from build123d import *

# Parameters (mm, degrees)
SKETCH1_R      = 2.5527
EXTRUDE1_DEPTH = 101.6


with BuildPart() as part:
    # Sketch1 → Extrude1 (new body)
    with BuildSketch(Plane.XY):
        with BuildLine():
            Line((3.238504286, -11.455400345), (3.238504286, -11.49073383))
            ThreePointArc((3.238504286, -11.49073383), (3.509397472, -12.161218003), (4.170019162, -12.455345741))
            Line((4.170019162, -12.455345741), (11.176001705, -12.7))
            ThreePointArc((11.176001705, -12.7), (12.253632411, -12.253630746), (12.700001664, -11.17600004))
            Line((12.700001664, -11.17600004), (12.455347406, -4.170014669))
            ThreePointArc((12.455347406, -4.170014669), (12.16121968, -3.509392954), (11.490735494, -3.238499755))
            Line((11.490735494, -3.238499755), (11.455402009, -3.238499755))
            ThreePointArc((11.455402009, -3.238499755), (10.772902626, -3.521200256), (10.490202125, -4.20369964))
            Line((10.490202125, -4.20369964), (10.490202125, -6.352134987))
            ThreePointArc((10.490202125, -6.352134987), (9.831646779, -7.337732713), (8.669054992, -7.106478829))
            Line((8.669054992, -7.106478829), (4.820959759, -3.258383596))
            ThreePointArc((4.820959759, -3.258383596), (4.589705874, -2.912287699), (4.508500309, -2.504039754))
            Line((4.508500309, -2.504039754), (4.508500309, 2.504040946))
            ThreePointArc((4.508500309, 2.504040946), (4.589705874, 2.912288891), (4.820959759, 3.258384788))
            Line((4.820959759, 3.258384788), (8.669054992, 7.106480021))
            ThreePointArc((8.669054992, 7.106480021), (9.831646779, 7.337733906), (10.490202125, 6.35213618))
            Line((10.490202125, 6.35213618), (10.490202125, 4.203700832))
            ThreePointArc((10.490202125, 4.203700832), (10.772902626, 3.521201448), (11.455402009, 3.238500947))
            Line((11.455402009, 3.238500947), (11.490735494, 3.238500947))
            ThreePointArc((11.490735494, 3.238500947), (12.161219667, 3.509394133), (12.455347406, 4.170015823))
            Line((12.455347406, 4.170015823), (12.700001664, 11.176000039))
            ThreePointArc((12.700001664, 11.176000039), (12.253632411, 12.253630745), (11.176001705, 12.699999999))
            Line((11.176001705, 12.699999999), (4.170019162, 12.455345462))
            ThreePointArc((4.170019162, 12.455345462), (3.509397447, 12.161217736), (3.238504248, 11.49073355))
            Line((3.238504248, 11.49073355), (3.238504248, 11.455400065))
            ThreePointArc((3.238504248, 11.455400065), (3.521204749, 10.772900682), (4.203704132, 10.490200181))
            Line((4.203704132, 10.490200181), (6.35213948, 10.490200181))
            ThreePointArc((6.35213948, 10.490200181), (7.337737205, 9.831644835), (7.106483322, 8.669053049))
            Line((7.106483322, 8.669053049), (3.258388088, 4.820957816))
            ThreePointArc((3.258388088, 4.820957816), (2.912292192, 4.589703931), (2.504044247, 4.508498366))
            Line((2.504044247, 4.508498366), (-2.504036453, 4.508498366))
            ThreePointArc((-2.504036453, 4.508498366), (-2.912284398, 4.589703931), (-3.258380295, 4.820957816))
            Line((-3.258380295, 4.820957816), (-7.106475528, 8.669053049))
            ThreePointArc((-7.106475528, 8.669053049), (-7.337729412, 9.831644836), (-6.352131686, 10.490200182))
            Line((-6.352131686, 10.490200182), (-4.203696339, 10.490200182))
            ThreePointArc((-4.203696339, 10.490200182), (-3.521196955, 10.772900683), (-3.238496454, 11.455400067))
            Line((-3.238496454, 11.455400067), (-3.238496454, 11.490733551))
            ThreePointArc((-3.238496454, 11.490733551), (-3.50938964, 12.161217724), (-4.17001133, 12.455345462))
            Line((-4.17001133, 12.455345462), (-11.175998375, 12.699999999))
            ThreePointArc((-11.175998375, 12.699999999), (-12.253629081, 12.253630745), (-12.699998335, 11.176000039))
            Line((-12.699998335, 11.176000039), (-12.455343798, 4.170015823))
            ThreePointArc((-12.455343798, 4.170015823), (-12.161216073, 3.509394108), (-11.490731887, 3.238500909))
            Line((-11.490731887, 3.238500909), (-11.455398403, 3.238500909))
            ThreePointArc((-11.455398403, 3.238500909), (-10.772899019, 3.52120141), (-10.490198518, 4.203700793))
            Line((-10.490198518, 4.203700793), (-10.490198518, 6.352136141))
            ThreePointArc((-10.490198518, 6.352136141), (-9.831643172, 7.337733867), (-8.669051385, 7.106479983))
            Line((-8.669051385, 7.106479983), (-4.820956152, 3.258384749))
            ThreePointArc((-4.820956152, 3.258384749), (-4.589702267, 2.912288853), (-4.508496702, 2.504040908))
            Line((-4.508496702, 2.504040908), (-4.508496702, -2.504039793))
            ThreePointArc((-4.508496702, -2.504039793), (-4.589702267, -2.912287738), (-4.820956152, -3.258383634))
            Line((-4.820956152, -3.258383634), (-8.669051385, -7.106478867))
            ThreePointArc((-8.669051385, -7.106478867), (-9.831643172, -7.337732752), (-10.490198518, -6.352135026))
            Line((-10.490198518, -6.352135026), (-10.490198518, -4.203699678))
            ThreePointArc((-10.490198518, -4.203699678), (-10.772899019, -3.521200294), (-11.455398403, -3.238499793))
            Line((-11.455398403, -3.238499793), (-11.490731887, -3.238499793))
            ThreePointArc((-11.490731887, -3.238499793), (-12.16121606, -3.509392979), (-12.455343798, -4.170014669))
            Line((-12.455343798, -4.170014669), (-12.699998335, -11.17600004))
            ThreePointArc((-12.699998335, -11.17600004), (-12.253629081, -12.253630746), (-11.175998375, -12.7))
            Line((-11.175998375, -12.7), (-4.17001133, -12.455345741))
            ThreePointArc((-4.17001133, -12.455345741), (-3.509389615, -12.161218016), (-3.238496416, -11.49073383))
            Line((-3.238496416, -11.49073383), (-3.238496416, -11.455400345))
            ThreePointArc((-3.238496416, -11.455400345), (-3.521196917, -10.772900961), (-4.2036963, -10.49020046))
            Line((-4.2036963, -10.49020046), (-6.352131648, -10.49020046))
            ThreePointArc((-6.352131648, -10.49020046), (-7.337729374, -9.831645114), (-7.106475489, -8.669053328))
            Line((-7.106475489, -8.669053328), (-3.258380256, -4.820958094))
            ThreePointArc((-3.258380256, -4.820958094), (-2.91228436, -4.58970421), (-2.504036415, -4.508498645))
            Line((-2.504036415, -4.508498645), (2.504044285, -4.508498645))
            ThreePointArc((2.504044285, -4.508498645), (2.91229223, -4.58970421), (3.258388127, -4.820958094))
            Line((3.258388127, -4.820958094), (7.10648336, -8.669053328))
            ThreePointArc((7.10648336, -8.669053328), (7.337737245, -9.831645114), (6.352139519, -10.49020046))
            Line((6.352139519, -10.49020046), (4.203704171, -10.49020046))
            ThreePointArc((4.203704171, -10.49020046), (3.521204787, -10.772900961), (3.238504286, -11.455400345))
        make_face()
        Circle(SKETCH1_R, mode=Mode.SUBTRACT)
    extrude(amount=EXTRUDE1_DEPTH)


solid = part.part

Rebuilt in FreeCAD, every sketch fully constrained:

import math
import FreeCAD as App
import Part
import Sketcher
from FreeCAD import Vector
Q = App.Units.Quantity

doc = App.newDocument("Part")
body = doc.addObject("PartDesign::Body", "Body")

# Sketch on XY plane
sketch1 = body.newObject("Sketcher::SketchObject", "Sketch")
sketch1.AttachmentSupport = (doc.getObject("XY_Plane"), [""])
sketch1.MapMode = "FlatFace"
sketch1.addGeometry([
    Part.LineSegment(Vector(3.239, -11.455, 0), Vector(3.239, -11.491, 0)),  # 0
    Part.ArcOfCircle(Part.Circle(Vector(4.204, -11.491, 0), Vector(0, 0, 1), 0.965), math.radians(180), math.radians(268)),  # 1
    Part.LineSegment(Vector(4.17, -12.455, 0), Vector(11.176, -12.7, 0)),  # 2
    Part.ArcOfCircle(Part.Circle(Vector(11.176, -11.176, 0), Vector(0, 0, 1), 1.524), math.radians(-90), math.radians(0)),  # 3
    Part.LineSegment(Vector(12.7, -11.176, 0), Vector(12.455, -4.17, 0)),  # 4
    Part.ArcOfCircle(Part.Circle(Vector(11.491, -4.204, 0), Vector(0, 0, 1), 0.965), math.radians(2), math.radians(90)),  # 5
    Part.LineSegment(Vector(11.491, -3.238, 0), Vector(11.455, -3.238, 0)),  # 6
    Part.ArcOfCircle(Part.Circle(Vector(11.455, -4.204, 0), Vector(0, 0, 1), 0.965), math.radians(90), math.radians(180)),  # 7
    Part.LineSegment(Vector(10.49, -4.204, 0), Vector(10.49, -6.352, 0)),  # 8
    Part.ArcOfCircle(Part.Circle(Vector(9.423, -6.352, 0), Vector(0, 0, 1), 1.067), math.radians(-135), math.radians(0)),  # 9
    Part.LineSegment(Vector(8.669, -7.106, 0), Vector(4.821, -3.258, 0)),  # 10
    Part.ArcOfCircle(Part.Circle(Vector(5.575, -2.504, 0), Vector(0, 0, 1), 1.067), math.radians(180), math.radians(225)),  # 11
    Part.LineSegment(Vector(4.509, -2.504, 0), Vector(4.509, 2.504, 0)),  # 12
    Part.ArcOfCircle(Part.Circle(Vector(5.575, 2.504, 0), Vector(0, 0, 1), 1.067), math.radians(135), math.radians(180)),  # 13
    Part.LineSegment(Vector(4.821, 3.258, 0), Vector(8.669, 7.106, 0)),  # 14
    Part.ArcOfCircle(Part.Circle(Vector(9.423, 6.352, 0), Vector(0, 0, 1), 1.067), math.radians(0), math.radians(135)),  # 15
    Part.LineSegment(Vector(10.49, 6.352, 0), Vector(10.49, 4.204, 0)),  # 16
    Part.ArcOfCircle(Part.Circle(Vector(11.455, 4.204, 0), Vector(0, 0, 1), 0.965), math.radians(180), math.radians(270)),  # 17
    Part.LineSegment(Vector(11.455, 3.239, 0), Vector(11.491, 3.239, 0)),  # 18
    Part.ArcOfCircle(Part.Circle(Vector(11.491, 4.204, 0), Vector(0, 0, 1), 0.965), math.radians(-90), math.radians(-2)),  # 19
    Part.LineSegment(Vector(12.455, 4.17, 0), Vector(12.7, 11.176, 0)),  # 20
    Part.ArcOfCircle(Part.Circle(Vector(11.176, 11.176, 0), Vector(0, 0, 1), 1.524), math.radians(0), math.radians(90)),  # 21
    Part.LineSegment(Vector(11.176, 12.7, 0), Vector(4.17, 12.455, 0)),  # 22
    Part.ArcOfCircle(Part.Circle(Vector(4.204, 11.491, 0), Vector(0, 0, 1), 0.965), math.radians(92), math.radians(180)),  # 23
    Part.LineSegment(Vector(3.239, 11.491, 0), Vector(3.239, 11.455, 0)),  # 24
    Part.ArcOfCircle(Part.Circle(Vector(4.204, 11.455, 0), Vector(0, 0, 1), 0.965), math.radians(-180), math.radians(-90)),  # 25
    Part.LineSegment(Vector(4.204, 10.49, 0), Vector(6.352, 10.49, 0)),  # 26
    Part.ArcOfCircle(Part.Circle(Vector(6.352, 9.423, 0), Vector(0, 0, 1), 1.067), math.radians(-45), math.radians(90)),  # 27
    Part.LineSegment(Vector(7.106, 8.669, 0), Vector(3.258, 4.821, 0)),  # 28
    Part.ArcOfCircle(Part.Circle(Vector(2.504, 5.575, 0), Vector(0, 0, 1), 1.067), math.radians(-90), math.radians(-45)),  # 29
    Part.LineSegment(Vector(2.504, 4.508, 0), Vector(-2.504, 4.508, 0)),  # 30
    Part.ArcOfCircle(Part.Circle(Vector(-2.504, 5.575, 0), Vector(0, 0, 1), 1.067), math.radians(-135), math.radians(-90)),  # 31
    Part.LineSegment(Vector(-3.258, 4.821, 0), Vector(-7.106, 8.669, 0)),  # 32
    Part.ArcOfCircle(Part.Circle(Vector(-6.352, 9.423, 0), Vector(0, 0, 1), 1.067), math.radians(90), math.radians(225)),  # 33
    Part.LineSegment(Vector(-6.352, 10.49, 0), Vector(-4.204, 10.49, 0)),  # 34
    Part.ArcOfCircle(Part.Circle(Vector(-4.204, 11.455, 0), Vector(0, 0, 1), 0.965), math.radians(-90), math.radians(0)),  # 35
    Part.LineSegment(Vector(-3.238, 11.455, 0), Vector(-3.238, 11.491, 0)),  # 36
    Part.ArcOfCircle(Part.Circle(Vector(-4.204, 11.491, 0), Vector(0, 0, 1), 0.965), math.radians(0), math.radians(88)),  # 37
    Part.LineSegment(Vector(-4.17, 12.455, 0), Vector(-11.176, 12.7, 0)),  # 38
    Part.ArcOfCircle(Part.Circle(Vector(-11.176, 11.176, 0), Vector(0, 0, 1), 1.524), math.radians(90), math.radians(180)),  # 39
    Part.LineSegment(Vector(-12.7, 11.176, 0), Vector(-12.455, 4.17, 0)),  # 40
    Part.ArcOfCircle(Part.Circle(Vector(-11.491, 4.204, 0), Vector(0, 0, 1), 0.965), math.radians(-178), math.radians(-90)),  # 41
    Part.LineSegment(Vector(-11.491, 3.239, 0), Vector(-11.455, 3.239, 0)),  # 42
    Part.ArcOfCircle(Part.Circle(Vector(-11.455, 4.204, 0), Vector(0, 0, 1), 0.965), math.radians(-90), math.radians(0)),  # 43
    Part.LineSegment(Vector(-10.49, 4.204, 0), Vector(-10.49, 6.352, 0)),  # 44
    Part.ArcOfCircle(Part.Circle(Vector(-9.423, 6.352, 0), Vector(0, 0, 1), 1.067), math.radians(45), math.radians(180)),  # 45
    Part.LineSegment(Vector(-8.669, 7.106, 0), Vector(-4.821, 3.258, 0)),  # 46
    Part.ArcOfCircle(Part.Circle(Vector(-5.575, 2.504, 0), Vector(0, 0, 1), 1.067), math.radians(0), math.radians(45)),  # 47
    Part.LineSegment(Vector(-4.508, 2.504, 0), Vector(-4.508, -2.504, 0)),  # 48
    Part.ArcOfCircle(Part.Circle(Vector(-5.575, -2.504, 0), Vector(0, 0, 1), 1.067), math.radians(-45), math.radians(0)),  # 49
    Part.LineSegment(Vector(-4.821, -3.258, 0), Vector(-8.669, -7.106, 0)),  # 50
    Part.ArcOfCircle(Part.Circle(Vector(-9.423, -6.352, 0), Vector(0, 0, 1), 1.067), math.radians(180), math.radians(315)),  # 51
    Part.LineSegment(Vector(-10.49, -6.352, 0), Vector(-10.49, -4.204, 0)),  # 52
    Part.ArcOfCircle(Part.Circle(Vector(-11.455, -4.204, 0), Vector(0, 0, 1), 0.965), math.radians(0), math.radians(90)),  # 53
    Part.LineSegment(Vector(-11.455, -3.238, 0), Vector(-11.491, -3.238, 0)),  # 54
    Part.ArcOfCircle(Part.Circle(Vector(-11.491, -4.204, 0), Vector(0, 0, 1), 0.965), math.radians(90), math.radians(178)),  # 55
    Part.LineSegment(Vector(-12.455, -4.17, 0), Vector(-12.7, -11.176, 0)),  # 56
    Part.ArcOfCircle(Part.Circle(Vector(-11.176, -11.176, 0), Vector(0, 0, 1), 1.524), math.radians(-180), math.radians(-90)),  # 57
    Part.LineSegment(Vector(-11.176, -12.7, 0), Vector(-4.17, -12.455, 0)),  # 58
    Part.ArcOfCircle(Part.Circle(Vector(-4.204, -11.491, 0), Vector(0, 0, 1), 0.965), math.radians(-88), math.radians(0)),  # 59
    Part.LineSegment(Vector(-3.238, -11.491, 0), Vector(-3.238, -11.455, 0)),  # 60
    Part.ArcOfCircle(Part.Circle(Vector(-4.204, -11.455, 0), Vector(0, 0, 1), 0.965), math.radians(0), math.radians(90)),  # 61
    Part.LineSegment(Vector(-4.204, -10.49, 0), Vector(-6.352, -10.49, 0)),  # 62
    Part.ArcOfCircle(Part.Circle(Vector(-6.352, -9.423, 0), Vector(0, 0, 1), 1.067), math.radians(135), math.radians(270)),  # 63
    Part.LineSegment(Vector(-7.106, -8.669, 0), Vector(-3.258, -4.821, 0)),  # 64
    Part.ArcOfCircle(Part.Circle(Vector(-2.504, -5.575, 0), Vector(0, 0, 1), 1.067), math.radians(90), math.radians(135)),  # 65
    Part.LineSegment(Vector(-2.504, -4.508, 0), Vector(2.504, -4.508, 0)),  # 66
    Part.ArcOfCircle(Part.Circle(Vector(2.504, -5.575, 0), Vector(0, 0, 1), 1.067), math.radians(45), math.radians(90)),  # 67
    Part.LineSegment(Vector(3.258, -4.821, 0), Vector(7.106, -8.669, 0)),  # 68
    Part.ArcOfCircle(Part.Circle(Vector(6.352, -9.423, 0), Vector(0, 0, 1), 1.067), math.radians(-90), math.radians(45)),  # 69
    Part.LineSegment(Vector(6.352, -10.49, 0), Vector(4.204, -10.49, 0)),  # 70
    Part.ArcOfCircle(Part.Circle(Vector(4.204, -11.455, 0), Vector(0, 0, 1), 0.965), math.radians(90), math.radians(180)),  # 71
    Part.Circle(Vector(0, 0, 0), Vector(0, 0, 1), 2.553),  # 72
], False)
sketch1.addConstraint([
    Sketcher.Constraint("Tangent", 0, 2, 1, 1),
    Sketcher.Constraint("Tangent", 1, 2, 2, 1),
    Sketcher.Constraint("Coincident", 2, 2, 3, 1),
    Sketcher.Constraint("Coincident", 3, 2, 4, 1),
    Sketcher.Constraint("Tangent", 4, 2, 5, 1),
    Sketcher.Constraint("Tangent", 5, 2, 6, 1),
    Sketcher.Constraint("Tangent", 6, 2, 7, 1),
    Sketcher.Constraint("Tangent", 7, 2, 8, 1),
    Sketcher.Constraint("Tangent", 8, 2, 9, 2),
    Sketcher.Constraint("Tangent", 9, 1, 10, 1),
    Sketcher.Constraint("Tangent", 10, 2, 11, 2),
    Sketcher.Constraint("Tangent", 11, 1, 12, 1),
    Sketcher.Constraint("Tangent", 12, 2, 13, 2),
    Sketcher.Constraint("Tangent", 13, 1, 14, 1),
    Sketcher.Constraint("Tangent", 14, 2, 15, 2),
    Sketcher.Constraint("Tangent", 15, 1, 16, 1),
    Sketcher.Constraint("Tangent", 16, 2, 17, 1),
    Sketcher.Constraint("Tangent", 17, 2, 18, 1),
    Sketcher.Constraint("Tangent", 18, 2, 19, 1),
    Sketcher.Constraint("Tangent", 19, 2, 20, 1),
    Sketcher.Constraint("Coincident", 20, 2, 21, 1),
    Sketcher.Constraint("Coincident", 21, 2, 22, 1),
    Sketcher.Constraint("Tangent", 22, 2, 23, 1),
    Sketcher.Constraint("Tangent", 23, 2, 24, 1),
    Sketcher.Constraint("Tangent", 24, 2, 25, 1),
    Sketcher.Constraint("Tangent", 25, 2, 26, 1),
    Sketcher.Constraint("Tangent", 26, 2, 27, 2),
    Sketcher.Constraint("Tangent", 27, 1, 28, 1),
    Sketcher.Constraint("Tangent", 28, 2, 29, 2),
    Sketcher.Constraint("Tangent", 29, 1, 30, 1),
    Sketcher.Constraint("Tangent", 30, 2, 31, 2),
    Sketcher.Constraint("Tangent", 31, 1, 32, 1),
    Sketcher.Constraint("Tangent", 32, 2, 33, 2),
    Sketcher.Constraint("Tangent", 33, 1, 34, 1),
    Sketcher.Constraint("Tangent", 34, 2, 35, 1),
    Sketcher.Constraint("Tangent", 35, 2, 36, 1),
    Sketcher.Constraint("Tangent", 36, 2, 37, 1),
    Sketcher.Constraint("Tangent", 37, 2, 38, 1),
    Sketcher.Constraint("Coincident", 38, 2, 39, 1),
    Sketcher.Constraint("Coincident", 39, 2, 40, 1),
    Sketcher.Constraint("Tangent", 40, 2, 41, 1),
    Sketcher.Constraint("Tangent", 41, 2, 42, 1),
    Sketcher.Constraint("Tangent", 42, 2, 43, 1),
    Sketcher.Constraint("Tangent", 43, 2, 44, 1),
    Sketcher.Constraint("Tangent", 44, 2, 45, 2),
    Sketcher.Constraint("Tangent", 45, 1, 46, 1),
    Sketcher.Constraint("Tangent", 46, 2, 47, 2),
    Sketcher.Constraint("Tangent", 47, 1, 48, 1),
    Sketcher.Constraint("Tangent", 48, 2, 49, 2),
    Sketcher.Constraint("Tangent", 49, 1, 50, 1),
    Sketcher.Constraint("Tangent", 50, 2, 51, 2),
    Sketcher.Constraint("Tangent", 51, 1, 52, 1),
    Sketcher.Constraint("Tangent", 52, 2, 53, 1),
    Sketcher.Constraint("Tangent", 53, 2, 54, 1),
    Sketcher.Constraint("Tangent", 54, 2, 55, 1),
    Sketcher.Constraint("Tangent", 55, 2, 56, 1),
    Sketcher.Constraint("Coincident", 56, 2, 57, 1),
    Sketcher.Constraint("Coincident", 57, 2, 58, 1),
    Sketcher.Constraint("Tangent", 58, 2, 59, 1),
    Sketcher.Constraint("Tangent", 59, 2, 60, 1),
    Sketcher.Constraint("Tangent", 60, 2, 61, 1),
    Sketcher.Constraint("Tangent", 61, 2, 62, 1),
    Sketcher.Constraint("Tangent", 62, 2, 63, 2),
    Sketcher.Constraint("Tangent", 63, 1, 64, 1),
    Sketcher.Constraint("Tangent", 64, 2, 65, 2),
    Sketcher.Constraint("Tangent", 65, 1, 66, 1),
    Sketcher.Constraint("Tangent", 66, 2, 67, 2),
    Sketcher.Constraint("Tangent", 67, 1, 68, 1),
    Sketcher.Constraint("Tangent", 68, 2, 69, 2),
    Sketcher.Constraint("Tangent", 69, 1, 70, 1),
    Sketcher.Constraint("Tangent", 70, 2, 71, 1),
    Sketcher.Constraint("Tangent", 71, 2, 0, 1),
    Sketcher.Constraint("Vertical", 0),
    Sketcher.Constraint("Horizontal", 6),
    Sketcher.Constraint("Vertical", 8),
    Sketcher.Constraint("Vertical", 12),
    Sketcher.Constraint("Vertical", 16),
    Sketcher.Constraint("Horizontal", 18),
    Sketcher.Constraint("Vertical", 24),
    Sketcher.Constraint("Horizontal", 26),
    Sketcher.Constraint("Horizontal", 30),
    Sketcher.Constraint("Horizontal", 34),
    Sketcher.Constraint("Vertical", 36),
    Sketcher.Constraint("Horizontal", 42),
    Sketcher.Constraint("Vertical", 44),
    Sketcher.Constraint("Vertical", 48),
    Sketcher.Constraint("Vertical", 52),
    Sketcher.Constraint("Horizontal", 54),
    Sketcher.Constraint("Vertical", 60),
    Sketcher.Constraint("Horizontal", 62),
    Sketcher.Constraint("Horizontal", 66),
    Sketcher.Constraint("Horizontal", 70),
    Sketcher.Constraint("Coincident", 72, 3, -1, 1),
    Sketcher.Constraint("Equal", 1, 5),
    Sketcher.Constraint("Equal", 5, 7),
    Sketcher.Constraint("Equal", 9, 11),
    Sketcher.Constraint("Equal", 11, 13),
    Sketcher.Constraint("Equal", 13, 15),
    Sketcher.Constraint("Equal", 7, 17),
    Sketcher.Constraint("Equal", 17, 19),
    Sketcher.Constraint("Equal", 3, 21),
    Sketcher.Constraint("Equal", 19, 23),
    Sketcher.Constraint("Equal", 23, 25),
    Sketcher.Constraint("Equal", 15, 27),
    Sketcher.Constraint("Equal", 27, 29),
    Sketcher.Constraint("Equal", 29, 31),
    Sketcher.Constraint("Equal", 31, 33),
    Sketcher.Constraint("Equal", 25, 35),
    Sketcher.Constraint("Equal", 35, 37),
    Sketcher.Constraint("Equal", 21, 39),
    Sketcher.Constraint("Equal", 37, 41),
    Sketcher.Constraint("Equal", 41, 43),
    Sketcher.Constraint("Equal", 33, 45),
    Sketcher.Constraint("Equal", 45, 47),
    Sketcher.Constraint("Equal", 47, 49),
    Sketcher.Constraint("Equal", 49, 51),
    Sketcher.Constraint("Equal", 43, 53),
    Sketcher.Constraint("Equal", 53, 55),
    Sketcher.Constraint("Equal", 39, 57),
    Sketcher.Constraint("Equal", 55, 59),
    Sketcher.Constraint("Equal", 59, 61),
    Sketcher.Constraint("Equal", 51, 63),
    Sketcher.Constraint("Equal", 63, 65),
    Sketcher.Constraint("Equal", 65, 67),
    Sketcher.Constraint("Equal", 67, 69),
    Sketcher.Constraint("Equal", 61, 71),
    Sketcher.Constraint("Symmetric", 1, 3, 37, 3, -1, 1),
    Sketcher.Constraint("Symmetric", 3, 3, 39, 3, -1, 1),
    Sketcher.Constraint("Symmetric", 5, 3, 41, 3, -1, 1),
    Sketcher.Constraint("Symmetric", 9, 3, 45, 3, -1, 1),
    Sketcher.Constraint("Symmetric", 11, 3, 47, 3, -1, 1),
    Sketcher.Constraint("Symmetric", 15, 3, 51, 3, -1, 1),
    Sketcher.Constraint("Symmetric", 19, 3, 55, 3, -1, 1),
    Sketcher.Constraint("Symmetric", 21, 3, 57, 3, -1, 1),
    Sketcher.Constraint("Symmetric", 23, 3, 59, 3, -1, 1),
    Sketcher.Constraint("Symmetric", 27, 3, 63, 3, -1, 1),
    Sketcher.Constraint("Symmetric", 29, 3, 65, 3, -1, 1),
    Sketcher.Constraint("Symmetric", 33, 3, 69, 3, -1, 1),
    Sketcher.Constraint("Symmetric", 27, 3, 33, 3, -2),
    Sketcher.Constraint("Symmetric", 23, 3, 37, 3, -2),
    Sketcher.Constraint("Symmetric", 21, 3, 39, 3, -2),
    Sketcher.Constraint("Symmetric", 19, 3, 41, 3, -2),
    Sketcher.Constraint("Symmetric", 15, 3, 45, 3, -2),
    Sketcher.Constraint("Perpendicular", 10, 14),
    Sketcher.Constraint("Perpendicular", 2, 20),
    Sketcher.Constraint("Perpendicular", 4, 22),
    Sketcher.Constraint("Parallel", 14, 28),
    Sketcher.Constraint("Perpendicular", 28, 32),
    Sketcher.Constraint("Perpendicular", 20, 38),
    Sketcher.Constraint("Perpendicular", 22, 40),
    Sketcher.Constraint("Perpendicular", 46, 50),
    Sketcher.Constraint("Perpendicular", 38, 56),
    Sketcher.Constraint("Perpendicular", 40, 58),
    Sketcher.Constraint("Perpendicular", 64, 68),
    Sketcher.Constraint("Horizontal", 13, 3, 47, 3),
    Sketcher.Constraint("Horizontal", 57, 3, 3, 2),
    Sketcher.Constraint("Horizontal", 39, 3, 20, 2),
    Sketcher.Constraint("Vertical", 21, 3, 2, 2),
    Sketcher.Constraint("Equal", 54, 0),
    Sketcher.Constraint("Equal", 70, 8),
    Sketcher.Constraint("Equal", 66, 12),
    Sketcher.Constraint("Equal", 2, 20),
    Sketcher.Constraint("Equal", 14, 28),
    Sketcher.Constraint("Radius", 3, Q("0.06 in")),
    Sketcher.Constraint("Diameter", 72, Q("0.201 in")),
    Sketcher.Constraint("Angle", 2, Q("-2 deg")),
    Sketcher.Constraint("Radius", 1, Q("0.038 in")),
    Sketcher.Constraint("Radius", 9, Q("0.0420001 in")),
    Sketcher.Constraint("DistanceY", 2, 2, -1, 1, Q("0.5 in")),
    Sketcher.Constraint("DistanceX", -1, 1, 7, 3, Q("0.4510001 in")),
    Sketcher.Constraint("DistanceX", -1, 1, 1, 3, Q("0.1655002 in")),
    Sketcher.Constraint("DistanceX", -1, 1, 11, 3, Q("0.2195001 in")),
    Sketcher.Constraint("DistanceX", 30, 2, 30, 1, 5.008081),
])
pad1 = body.newObject("PartDesign::Pad", "Pad")
pad1.Profile = sketch1
pad1.Length = Q("4 in")

doc.recompute()
